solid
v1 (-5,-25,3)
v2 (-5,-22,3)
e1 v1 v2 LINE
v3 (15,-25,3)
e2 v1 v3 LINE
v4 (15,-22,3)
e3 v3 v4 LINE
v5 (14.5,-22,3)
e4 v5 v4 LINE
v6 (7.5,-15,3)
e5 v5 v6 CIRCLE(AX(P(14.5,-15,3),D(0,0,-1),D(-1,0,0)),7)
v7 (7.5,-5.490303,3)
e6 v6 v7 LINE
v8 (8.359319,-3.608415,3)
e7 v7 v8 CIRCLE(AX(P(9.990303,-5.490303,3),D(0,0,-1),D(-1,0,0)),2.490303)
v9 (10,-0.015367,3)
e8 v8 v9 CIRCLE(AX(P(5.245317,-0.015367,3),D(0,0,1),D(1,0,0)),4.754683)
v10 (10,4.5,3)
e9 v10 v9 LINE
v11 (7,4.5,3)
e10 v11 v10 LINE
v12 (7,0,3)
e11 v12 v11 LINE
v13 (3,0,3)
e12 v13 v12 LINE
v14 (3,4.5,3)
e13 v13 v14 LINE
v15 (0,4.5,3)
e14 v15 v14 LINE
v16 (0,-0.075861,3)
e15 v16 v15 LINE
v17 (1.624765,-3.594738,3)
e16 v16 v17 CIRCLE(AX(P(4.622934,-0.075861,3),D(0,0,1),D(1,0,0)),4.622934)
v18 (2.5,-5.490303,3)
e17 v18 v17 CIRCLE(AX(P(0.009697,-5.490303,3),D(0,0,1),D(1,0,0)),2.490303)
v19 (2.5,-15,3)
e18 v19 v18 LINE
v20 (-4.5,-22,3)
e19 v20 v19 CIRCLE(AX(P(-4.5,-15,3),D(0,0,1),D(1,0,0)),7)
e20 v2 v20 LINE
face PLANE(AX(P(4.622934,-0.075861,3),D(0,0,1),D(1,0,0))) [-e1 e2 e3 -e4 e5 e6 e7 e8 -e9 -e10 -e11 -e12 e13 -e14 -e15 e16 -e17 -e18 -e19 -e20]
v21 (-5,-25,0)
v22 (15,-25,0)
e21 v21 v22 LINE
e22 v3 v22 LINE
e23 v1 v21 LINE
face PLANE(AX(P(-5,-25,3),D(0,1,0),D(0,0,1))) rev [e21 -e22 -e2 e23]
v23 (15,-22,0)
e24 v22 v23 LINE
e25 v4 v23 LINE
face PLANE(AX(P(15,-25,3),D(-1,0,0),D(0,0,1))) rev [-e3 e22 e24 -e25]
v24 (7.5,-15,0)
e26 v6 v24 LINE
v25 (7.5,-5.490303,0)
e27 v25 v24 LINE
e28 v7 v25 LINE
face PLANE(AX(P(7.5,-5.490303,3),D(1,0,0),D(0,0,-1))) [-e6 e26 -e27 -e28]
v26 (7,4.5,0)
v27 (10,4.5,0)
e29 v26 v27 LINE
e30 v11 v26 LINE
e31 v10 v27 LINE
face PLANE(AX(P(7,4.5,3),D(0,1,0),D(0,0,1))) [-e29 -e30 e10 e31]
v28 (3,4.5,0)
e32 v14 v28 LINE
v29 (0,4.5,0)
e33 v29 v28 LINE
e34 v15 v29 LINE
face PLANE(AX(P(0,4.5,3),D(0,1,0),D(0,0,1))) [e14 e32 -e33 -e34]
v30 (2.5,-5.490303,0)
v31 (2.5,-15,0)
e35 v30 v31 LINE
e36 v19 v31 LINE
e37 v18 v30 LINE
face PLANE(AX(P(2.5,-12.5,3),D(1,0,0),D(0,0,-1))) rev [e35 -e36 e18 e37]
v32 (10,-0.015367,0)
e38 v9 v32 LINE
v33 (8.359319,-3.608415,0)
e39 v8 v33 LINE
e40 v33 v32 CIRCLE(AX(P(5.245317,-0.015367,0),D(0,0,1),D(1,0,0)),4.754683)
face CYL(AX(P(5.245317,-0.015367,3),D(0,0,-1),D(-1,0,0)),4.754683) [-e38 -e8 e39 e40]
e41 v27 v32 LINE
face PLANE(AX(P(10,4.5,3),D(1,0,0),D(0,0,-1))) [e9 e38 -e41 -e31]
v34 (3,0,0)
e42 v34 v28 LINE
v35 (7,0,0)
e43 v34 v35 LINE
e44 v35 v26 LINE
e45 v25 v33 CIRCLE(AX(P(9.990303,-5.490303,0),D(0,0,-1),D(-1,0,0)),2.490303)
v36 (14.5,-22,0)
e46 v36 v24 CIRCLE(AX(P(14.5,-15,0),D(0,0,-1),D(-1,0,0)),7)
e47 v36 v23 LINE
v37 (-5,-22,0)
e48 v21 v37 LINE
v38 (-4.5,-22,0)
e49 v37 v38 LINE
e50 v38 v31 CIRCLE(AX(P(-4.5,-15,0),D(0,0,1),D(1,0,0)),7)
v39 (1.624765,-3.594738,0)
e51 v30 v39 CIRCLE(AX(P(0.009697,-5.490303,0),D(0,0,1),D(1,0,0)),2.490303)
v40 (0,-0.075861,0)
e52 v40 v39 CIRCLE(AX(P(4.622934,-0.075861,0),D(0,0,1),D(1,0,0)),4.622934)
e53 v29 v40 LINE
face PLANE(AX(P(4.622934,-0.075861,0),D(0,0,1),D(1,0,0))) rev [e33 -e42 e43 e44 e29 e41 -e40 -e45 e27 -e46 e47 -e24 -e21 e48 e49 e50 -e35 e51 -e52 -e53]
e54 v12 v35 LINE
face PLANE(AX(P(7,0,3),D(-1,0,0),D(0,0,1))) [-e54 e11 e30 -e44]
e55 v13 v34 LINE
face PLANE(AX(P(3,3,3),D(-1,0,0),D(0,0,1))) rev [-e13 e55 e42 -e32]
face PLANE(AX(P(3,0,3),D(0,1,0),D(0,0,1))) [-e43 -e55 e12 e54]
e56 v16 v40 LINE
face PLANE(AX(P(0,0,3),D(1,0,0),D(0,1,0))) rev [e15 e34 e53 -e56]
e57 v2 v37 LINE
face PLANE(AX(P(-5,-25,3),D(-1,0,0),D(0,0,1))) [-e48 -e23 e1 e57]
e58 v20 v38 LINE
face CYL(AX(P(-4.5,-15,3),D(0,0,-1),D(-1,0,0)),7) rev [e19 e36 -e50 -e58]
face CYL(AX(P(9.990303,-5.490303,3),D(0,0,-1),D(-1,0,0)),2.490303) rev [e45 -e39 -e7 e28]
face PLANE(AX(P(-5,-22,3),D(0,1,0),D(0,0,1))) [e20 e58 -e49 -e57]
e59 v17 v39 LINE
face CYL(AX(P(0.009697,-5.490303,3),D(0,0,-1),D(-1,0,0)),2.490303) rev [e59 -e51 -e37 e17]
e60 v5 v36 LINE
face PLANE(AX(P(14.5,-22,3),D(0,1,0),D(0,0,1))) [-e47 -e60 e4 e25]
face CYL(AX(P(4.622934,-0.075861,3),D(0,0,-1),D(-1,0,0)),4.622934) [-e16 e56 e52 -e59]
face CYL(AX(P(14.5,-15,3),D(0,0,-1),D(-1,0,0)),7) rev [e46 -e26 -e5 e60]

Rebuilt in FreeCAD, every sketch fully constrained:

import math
import FreeCAD as App
import Part
import Sketcher

doc = App.newDocument("Part")
body = doc.addObject("PartDesign::Body", "Body")

# Sketch on XY plane
sketch1 = doc.addObject("Sketcher::SketchObject", "Sketch")
body.addObject(sketch1)
sketch1.AttachmentSupport = (doc.XY_Plane, [""])
sketch1.MapMode = "FlatFace"
sketch1.addGeometry(Part.LineSegment(App.Vector(7, 0, 0), App.Vector(3, 0, 0)), False)
sketch1.addGeometry(Part.LineSegment(App.Vector(3, 0, 0), App.Vector(3, 4.5, 0)), False)
sketch1.addGeometry(Part.LineSegment(App.Vector(3, 4.5, 0), App.Vector(0, 4.5, 0)), False)
sketch1.addGeometry(Part.LineSegment(App.Vector(0, 4.5, 0), App.Vector(0, -0.1, 0)), False)
sketch1.addGeometry(Part.ArcOfCircle(Part.Circle(App.Vector(4.6, -0.1, 0), App.Vector(0, 0, 1), 4.6), math.radians(180), math.radians(230)), False)
sketch1.addGeometry(Part.ArcOfCircle(Part.Circle(App.Vector(0, -5.5, 0), App.Vector(0, 0, 1), 2.5), math.radians(0), math.radians(50)), False)
sketch1.addGeometry(Part.LineSegment(App.Vector(2.5, -5.5, 0), App.Vector(2.5, -15, 0)), False)
sketch1.addGeometry(Part.ArcOfCircle(Part.Circle(App.Vector(-4.5, -15, 0), App.Vector(0, 0, 1), 7), math.radians(-90), math.radians(0)), False)
sketch1.addGeometry(Part.LineSegment(App.Vector(-4.5, -22, 0), App.Vector(-5, -22, 0)), False)
sketch1.addGeometry(Part.LineSegment(App.Vector(-5, -22, 0), App.Vector(-5, -25, 0)), False)
sketch1.addGeometry(Part.LineSegment(App.Vector(-5, -25, 0), App.Vector(15, -25, 0)), False)
sketch1.addGeometry(Part.LineSegment(App.Vector(15, -25, 0), App.Vector(15, -22, 0)), False)
sketch1.addGeometry(Part.LineSegment(App.Vector(15, -22, 0), App.Vector(14.5, -22, 0)), False)
sketch1.addGeometry(Part.ArcOfCircle(Part.Circle(App.Vector(14.5, -15, 0), App.Vector(0, 0, 1), 7), math.radians(-180), math.radians(-90)), False)
sketch1.addGeometry(Part.LineSegment(App.Vector(7.5, -15, 0), App.Vector(7.5, -5.5, 0)), False)
sketch1.addGeometry(Part.ArcOfCircle(Part.Circle(App.Vector(10, -5.5, 0), App.Vector(0, 0, 1), 2.5), math.radians(131), math.radians(180)), False)
sketch1.addGeometry(Part.ArcOfCircle(Part.Circle(App.Vector(5.2, 0, 0), App.Vector(0, 0, 1), 4.8), math.radians(-49), math.radians(0)), False)
sketch1.addGeometry(Part.LineSegment(App.Vector(10, 0, 0), App.Vector(10, 4.5, 0)), False)
sketch1.addGeometry(Part.LineSegment(App.Vector(10, 4.5, 0), App.Vector(7, 4.5, 0)), False)
sketch1.addGeometry(Part.LineSegment(App.Vector(7, 4.5, 0), App.Vector(7, 0, 0)), False)
sketch1.addConstraint(Sketcher.Constraint("Coincident", 0, 2, 1, 1))
sketch1.addConstraint(Sketcher.Constraint("Coincident", 1, 2, 2, 1))
sketch1.addConstraint(Sketcher.Constraint("Coincident", 2, 2, 3, 1))
sketch1.addConstraint(Sketcher.Constraint("Tangent", 3, 2, 4, 1))
sketch1.addConstraint(Sketcher.Constraint("Tangent", 4, 2, 5, 2))
sketch1.addConstraint(Sketcher.Constraint("Tangent", 5, 1, 6, 1))
sketch1.addConstraint(Sketcher.Constraint("Tangent", 6, 2, 7, 2))
sketch1.addConstraint(Sketcher.Constraint("Tangent", 7, 1, 8, 1))
sketch1.addConstraint(Sketcher.Constraint("Coincident", 8, 2, 9, 1))
sketch1.addConstraint(Sketcher.Constraint("Coincident", 9, 2, 10, 1))
sketch1.addConstraint(Sketcher.Constraint("Coincident", 10, 2, 11, 1))
sketch1.addConstraint(Sketcher.Constraint("Coincident", 11, 2, 12, 1))
sketch1.addConstraint(Sketcher.Constraint("Tangent", 12, 2, 13, 2))
sketch1.addConstraint(Sketcher.Constraint("Tangent", 13, 1, 14, 1))
sketch1.addConstraint(Sketcher.Constraint("Tangent", 14, 2, 15, 2))
sketch1.addConstraint(Sketcher.Constraint("Tangent", 15, 1, 16, 1))
sketch1.addConstraint(Sketcher.Constraint("Tangent", 16, 2, 17, 1))
sketch1.addConstraint(Sketcher.Constraint("Coincident", 17, 2, 18, 1))
sketch1.addConstraint(Sketcher.Constraint("Coincident", 18, 2, 19, 1))
sketch1.addConstraint(Sketcher.Constraint("Coincident", 19, 2, 0, 1))
sketch1.addConstraint(Sketcher.Constraint("Horizontal", 0))
sketch1.addConstraint(Sketcher.Constraint("Vertical", 1))
sketch1.addConstraint(Sketcher.Constraint("Horizontal", 2))
sketch1.addConstraint(Sketcher.Constraint("Vertical", 3))
sketch1.addConstraint(Sketcher.Constraint("Vertical", 6))
sketch1.addConstraint(Sketcher.Constraint("Horizontal", 8))
sketch1.addConstraint(Sketcher.Constraint("Vertical", 9))
sketch1.addConstraint(Sketcher.Constraint("Horizontal", 10))
sketch1.addConstraint(Sketcher.Constraint("Vertical", 11))
sketch1.addConstraint(Sketcher.Constraint("Horizontal", 12))
sketch1.addConstraint(Sketcher.Constraint("Vertical", 14))
sketch1.addConstraint(Sketcher.Constraint("Vertical", 17))
sketch1.addConstraint(Sketcher.Constraint("Horizontal", 18))
sketch1.addConstraint(Sketcher.Constraint("Vertical", 19))
sketch1.addConstraint(Sketcher.Constraint("Equal", 7, 13))
sketch1.addConstraint(Sketcher.Constraint("Equal", 5, 15))
sketch1.addConstraint(Sketcher.Constraint("PointOnObject", 0, 2, -1))
sketch1.addConstraint(Sketcher.Constraint("PointOnObject", 2, 2, -2))
sketch1.addConstraint(Sketcher.Constraint("Horizontal", 7, 3, 13, 3))
sketch1.addConstraint(Sketcher.Constraint("Horizontal", 5, 3, 15, 3))
sketch1.addConstraint(Sketcher.Constraint("Horizontal", 2, 2, 17, 2))
sketch1.addConstraint(Sketcher.Constraint("Equal", 8, 12))
sketch1.addConstraint(Sketcher.Constraint("Equal", 2, 18))
sketch1.addConstraint(Sketcher.Constraint("Equal", 18, 9))
sketch1.addConstraint(Sketcher.Constraint("Radius", 7, 7.0))
sketch1.addConstraint(Sketcher.Constraint("DistanceX", 0, 2, 0, 1, 4.0))
sketch1.addConstraint(Sketcher.Constraint("DistanceX", 2, 2, 2, 1, 3.0))
sketch1.addConstraint(Sketcher.Constraint("DistanceX", 10, 1, 10, 2, 20.0))
sketch1.addConstraint(Sketcher.Constraint("DistanceX", 8, 2, 8, 1, 0.5))
sketch1.addConstraint(Sketcher.Constraint("DistanceY", 1, 1, 1, 2, 4.5))
sketch1.addConstraint(Sketcher.Constraint("DistanceY", 7, 3, -1, 1, 15.0))
sketch1.addConstraint(Sketcher.Constraint("DistanceX", 8, 2, -1, 1, 5.0))
sketch1.addConstraint(Sketcher.Constraint("Radius", 4, 4.622934))
sketch1.addConstraint(Sketcher.Constraint("Radius", 5, 2.490303))
sketch1.addConstraint(Sketcher.Constraint("Radius", 16, 4.754683))
sketch1.addConstraint(Sketcher.Constraint("DistanceY", 3, 2, 3, 1, 4.575861))
pad1 = doc.addObject("PartDesign::Pad", "Pad")
body.addObject(pad1)
pad1.Profile = sketch1
pad1.Length = 3

doc.recompute()
